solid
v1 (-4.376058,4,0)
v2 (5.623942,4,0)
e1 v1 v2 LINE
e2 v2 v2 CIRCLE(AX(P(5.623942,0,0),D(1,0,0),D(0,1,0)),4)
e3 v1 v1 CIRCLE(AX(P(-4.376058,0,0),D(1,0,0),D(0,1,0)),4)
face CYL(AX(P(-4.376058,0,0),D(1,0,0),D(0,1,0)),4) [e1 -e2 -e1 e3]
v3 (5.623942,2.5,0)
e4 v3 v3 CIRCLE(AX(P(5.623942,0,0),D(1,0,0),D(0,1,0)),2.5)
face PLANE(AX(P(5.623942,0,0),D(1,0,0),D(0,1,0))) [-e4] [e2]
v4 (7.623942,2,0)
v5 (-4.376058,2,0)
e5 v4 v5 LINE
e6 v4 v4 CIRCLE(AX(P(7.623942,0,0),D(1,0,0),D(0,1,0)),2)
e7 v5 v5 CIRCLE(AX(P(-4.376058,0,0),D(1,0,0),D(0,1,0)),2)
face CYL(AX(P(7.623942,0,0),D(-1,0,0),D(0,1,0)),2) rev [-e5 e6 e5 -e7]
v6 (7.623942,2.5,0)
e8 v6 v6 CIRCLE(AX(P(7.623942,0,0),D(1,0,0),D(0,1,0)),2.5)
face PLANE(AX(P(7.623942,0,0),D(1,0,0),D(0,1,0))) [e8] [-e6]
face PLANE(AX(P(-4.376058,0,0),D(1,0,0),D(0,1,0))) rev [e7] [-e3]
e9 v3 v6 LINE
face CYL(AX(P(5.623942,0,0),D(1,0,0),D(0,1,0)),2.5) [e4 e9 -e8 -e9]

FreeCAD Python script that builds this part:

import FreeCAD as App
import Part
import Sketcher
from FreeCAD import Vector
Q = App.Units.Quantity

doc = App.newDocument("Part")
params = doc.addObject("Spreadsheet::Sheet", "Params")
for row, (alias, value) in enumerate([
    ("sketch1_width", "12 mm"),
    ("sketch1_width2", "2 mm"),
    ("sketch1_height", "0.5 mm"),
    ("revolution_angle", "360 deg"),
], start=1):
    params.set(f"A{row}", alias)
    params.set(f"B{row}", "=" + value)
    params.setAlias(f"B{row}", alias)

body = doc.addObject("PartDesign::Body", "Body")

# Sketch on XY plane
sketch1 = doc.addObject("Sketcher::SketchObject", "Sketch")
body.addObject(sketch1)
sketch1.AttachmentSupport = (doc.XY_Plane, [""])
sketch1.MapMode = "FlatFace"
sketch1.addGeometry([
    Part.LineSegment(Vector(-4.376058, 4, 0), Vector(-4.376058, 2, 0)),  # 0
    Part.LineSegment(Vector(-4.376058, 2, 0), Vector(7.623942, 2, 0)),  # 1
    Part.LineSegment(Vector(7.623942, 2, 0), Vector(7.623942, 2.5, 0)),  # 2
    Part.LineSegment(Vector(7.623942, 2.5, 0), Vector(5.623942, 2.5, 0)),  # 3
    Part.LineSegment(Vector(5.623942, 2.5, 0), Vector(5.623942, 4, 0)),  # 4
    Part.LineSegment(Vector(5.623942, 4, 0), Vector(-4.376058, 4, 0)),  # 5
], False)
sketch1.addConstraint([
    Sketcher.Constraint("Coincident", 0, 2, 1, 1),
    Sketcher.Constraint("Coincident", 1, 2, 2, 1),
    Sketcher.Constraint("Coincident", 2, 2, 3, 1),
    Sketcher.Constraint("Coincident", 3, 2, 4, 1),
    Sketcher.Constraint("Coincident", 4, 2, 5, 1),
    Sketcher.Constraint("Coincident", 5, 2, 0, 1),
    Sketcher.Constraint("Vertical", 0),
    Sketcher.Constraint("Horizontal", 1),
    Sketcher.Constraint("Vertical", 2),
    Sketcher.Constraint("Horizontal", 3),
    Sketcher.Constraint("Vertical", 4),
    Sketcher.Constraint("Horizontal", 5),
    Sketcher.Constraint("Equal", 3, 0),
    Sketcher.Constraint("DistanceX", 1, 1, 1, 2, Q("12 mm")),
    Sketcher.Constraint("DistanceX", 3, 2, 3, 1, Q("2 mm")),
    Sketcher.Constraint("DistanceY", 2, 1, 2, 2, Q("0.5 mm")),
    Sketcher.Constraint("DistanceY", -1, 1, 0, 2, Q("2 mm")),
    Sketcher.Constraint("DistanceX", 0, 2, -1, 1, Q("4.376058 mm")),
])
sketch1.setExpression("Constraints[13]", "Params.sketch1_width")
sketch1.setExpression("Constraints[14]", "Params.sketch1_width2")
sketch1.setExpression("Constraints[15]", "Params.sketch1_height")
revolution = doc.addObject("PartDesign::Revolution", "Revolution")
body.addObject(revolution)
revolution.Profile = sketch1
revolution.ReferenceAxis = (sketch1, ["H_Axis"])
revolution.setExpression("Angle", "Params.revolution_angle")

doc.recompute()
